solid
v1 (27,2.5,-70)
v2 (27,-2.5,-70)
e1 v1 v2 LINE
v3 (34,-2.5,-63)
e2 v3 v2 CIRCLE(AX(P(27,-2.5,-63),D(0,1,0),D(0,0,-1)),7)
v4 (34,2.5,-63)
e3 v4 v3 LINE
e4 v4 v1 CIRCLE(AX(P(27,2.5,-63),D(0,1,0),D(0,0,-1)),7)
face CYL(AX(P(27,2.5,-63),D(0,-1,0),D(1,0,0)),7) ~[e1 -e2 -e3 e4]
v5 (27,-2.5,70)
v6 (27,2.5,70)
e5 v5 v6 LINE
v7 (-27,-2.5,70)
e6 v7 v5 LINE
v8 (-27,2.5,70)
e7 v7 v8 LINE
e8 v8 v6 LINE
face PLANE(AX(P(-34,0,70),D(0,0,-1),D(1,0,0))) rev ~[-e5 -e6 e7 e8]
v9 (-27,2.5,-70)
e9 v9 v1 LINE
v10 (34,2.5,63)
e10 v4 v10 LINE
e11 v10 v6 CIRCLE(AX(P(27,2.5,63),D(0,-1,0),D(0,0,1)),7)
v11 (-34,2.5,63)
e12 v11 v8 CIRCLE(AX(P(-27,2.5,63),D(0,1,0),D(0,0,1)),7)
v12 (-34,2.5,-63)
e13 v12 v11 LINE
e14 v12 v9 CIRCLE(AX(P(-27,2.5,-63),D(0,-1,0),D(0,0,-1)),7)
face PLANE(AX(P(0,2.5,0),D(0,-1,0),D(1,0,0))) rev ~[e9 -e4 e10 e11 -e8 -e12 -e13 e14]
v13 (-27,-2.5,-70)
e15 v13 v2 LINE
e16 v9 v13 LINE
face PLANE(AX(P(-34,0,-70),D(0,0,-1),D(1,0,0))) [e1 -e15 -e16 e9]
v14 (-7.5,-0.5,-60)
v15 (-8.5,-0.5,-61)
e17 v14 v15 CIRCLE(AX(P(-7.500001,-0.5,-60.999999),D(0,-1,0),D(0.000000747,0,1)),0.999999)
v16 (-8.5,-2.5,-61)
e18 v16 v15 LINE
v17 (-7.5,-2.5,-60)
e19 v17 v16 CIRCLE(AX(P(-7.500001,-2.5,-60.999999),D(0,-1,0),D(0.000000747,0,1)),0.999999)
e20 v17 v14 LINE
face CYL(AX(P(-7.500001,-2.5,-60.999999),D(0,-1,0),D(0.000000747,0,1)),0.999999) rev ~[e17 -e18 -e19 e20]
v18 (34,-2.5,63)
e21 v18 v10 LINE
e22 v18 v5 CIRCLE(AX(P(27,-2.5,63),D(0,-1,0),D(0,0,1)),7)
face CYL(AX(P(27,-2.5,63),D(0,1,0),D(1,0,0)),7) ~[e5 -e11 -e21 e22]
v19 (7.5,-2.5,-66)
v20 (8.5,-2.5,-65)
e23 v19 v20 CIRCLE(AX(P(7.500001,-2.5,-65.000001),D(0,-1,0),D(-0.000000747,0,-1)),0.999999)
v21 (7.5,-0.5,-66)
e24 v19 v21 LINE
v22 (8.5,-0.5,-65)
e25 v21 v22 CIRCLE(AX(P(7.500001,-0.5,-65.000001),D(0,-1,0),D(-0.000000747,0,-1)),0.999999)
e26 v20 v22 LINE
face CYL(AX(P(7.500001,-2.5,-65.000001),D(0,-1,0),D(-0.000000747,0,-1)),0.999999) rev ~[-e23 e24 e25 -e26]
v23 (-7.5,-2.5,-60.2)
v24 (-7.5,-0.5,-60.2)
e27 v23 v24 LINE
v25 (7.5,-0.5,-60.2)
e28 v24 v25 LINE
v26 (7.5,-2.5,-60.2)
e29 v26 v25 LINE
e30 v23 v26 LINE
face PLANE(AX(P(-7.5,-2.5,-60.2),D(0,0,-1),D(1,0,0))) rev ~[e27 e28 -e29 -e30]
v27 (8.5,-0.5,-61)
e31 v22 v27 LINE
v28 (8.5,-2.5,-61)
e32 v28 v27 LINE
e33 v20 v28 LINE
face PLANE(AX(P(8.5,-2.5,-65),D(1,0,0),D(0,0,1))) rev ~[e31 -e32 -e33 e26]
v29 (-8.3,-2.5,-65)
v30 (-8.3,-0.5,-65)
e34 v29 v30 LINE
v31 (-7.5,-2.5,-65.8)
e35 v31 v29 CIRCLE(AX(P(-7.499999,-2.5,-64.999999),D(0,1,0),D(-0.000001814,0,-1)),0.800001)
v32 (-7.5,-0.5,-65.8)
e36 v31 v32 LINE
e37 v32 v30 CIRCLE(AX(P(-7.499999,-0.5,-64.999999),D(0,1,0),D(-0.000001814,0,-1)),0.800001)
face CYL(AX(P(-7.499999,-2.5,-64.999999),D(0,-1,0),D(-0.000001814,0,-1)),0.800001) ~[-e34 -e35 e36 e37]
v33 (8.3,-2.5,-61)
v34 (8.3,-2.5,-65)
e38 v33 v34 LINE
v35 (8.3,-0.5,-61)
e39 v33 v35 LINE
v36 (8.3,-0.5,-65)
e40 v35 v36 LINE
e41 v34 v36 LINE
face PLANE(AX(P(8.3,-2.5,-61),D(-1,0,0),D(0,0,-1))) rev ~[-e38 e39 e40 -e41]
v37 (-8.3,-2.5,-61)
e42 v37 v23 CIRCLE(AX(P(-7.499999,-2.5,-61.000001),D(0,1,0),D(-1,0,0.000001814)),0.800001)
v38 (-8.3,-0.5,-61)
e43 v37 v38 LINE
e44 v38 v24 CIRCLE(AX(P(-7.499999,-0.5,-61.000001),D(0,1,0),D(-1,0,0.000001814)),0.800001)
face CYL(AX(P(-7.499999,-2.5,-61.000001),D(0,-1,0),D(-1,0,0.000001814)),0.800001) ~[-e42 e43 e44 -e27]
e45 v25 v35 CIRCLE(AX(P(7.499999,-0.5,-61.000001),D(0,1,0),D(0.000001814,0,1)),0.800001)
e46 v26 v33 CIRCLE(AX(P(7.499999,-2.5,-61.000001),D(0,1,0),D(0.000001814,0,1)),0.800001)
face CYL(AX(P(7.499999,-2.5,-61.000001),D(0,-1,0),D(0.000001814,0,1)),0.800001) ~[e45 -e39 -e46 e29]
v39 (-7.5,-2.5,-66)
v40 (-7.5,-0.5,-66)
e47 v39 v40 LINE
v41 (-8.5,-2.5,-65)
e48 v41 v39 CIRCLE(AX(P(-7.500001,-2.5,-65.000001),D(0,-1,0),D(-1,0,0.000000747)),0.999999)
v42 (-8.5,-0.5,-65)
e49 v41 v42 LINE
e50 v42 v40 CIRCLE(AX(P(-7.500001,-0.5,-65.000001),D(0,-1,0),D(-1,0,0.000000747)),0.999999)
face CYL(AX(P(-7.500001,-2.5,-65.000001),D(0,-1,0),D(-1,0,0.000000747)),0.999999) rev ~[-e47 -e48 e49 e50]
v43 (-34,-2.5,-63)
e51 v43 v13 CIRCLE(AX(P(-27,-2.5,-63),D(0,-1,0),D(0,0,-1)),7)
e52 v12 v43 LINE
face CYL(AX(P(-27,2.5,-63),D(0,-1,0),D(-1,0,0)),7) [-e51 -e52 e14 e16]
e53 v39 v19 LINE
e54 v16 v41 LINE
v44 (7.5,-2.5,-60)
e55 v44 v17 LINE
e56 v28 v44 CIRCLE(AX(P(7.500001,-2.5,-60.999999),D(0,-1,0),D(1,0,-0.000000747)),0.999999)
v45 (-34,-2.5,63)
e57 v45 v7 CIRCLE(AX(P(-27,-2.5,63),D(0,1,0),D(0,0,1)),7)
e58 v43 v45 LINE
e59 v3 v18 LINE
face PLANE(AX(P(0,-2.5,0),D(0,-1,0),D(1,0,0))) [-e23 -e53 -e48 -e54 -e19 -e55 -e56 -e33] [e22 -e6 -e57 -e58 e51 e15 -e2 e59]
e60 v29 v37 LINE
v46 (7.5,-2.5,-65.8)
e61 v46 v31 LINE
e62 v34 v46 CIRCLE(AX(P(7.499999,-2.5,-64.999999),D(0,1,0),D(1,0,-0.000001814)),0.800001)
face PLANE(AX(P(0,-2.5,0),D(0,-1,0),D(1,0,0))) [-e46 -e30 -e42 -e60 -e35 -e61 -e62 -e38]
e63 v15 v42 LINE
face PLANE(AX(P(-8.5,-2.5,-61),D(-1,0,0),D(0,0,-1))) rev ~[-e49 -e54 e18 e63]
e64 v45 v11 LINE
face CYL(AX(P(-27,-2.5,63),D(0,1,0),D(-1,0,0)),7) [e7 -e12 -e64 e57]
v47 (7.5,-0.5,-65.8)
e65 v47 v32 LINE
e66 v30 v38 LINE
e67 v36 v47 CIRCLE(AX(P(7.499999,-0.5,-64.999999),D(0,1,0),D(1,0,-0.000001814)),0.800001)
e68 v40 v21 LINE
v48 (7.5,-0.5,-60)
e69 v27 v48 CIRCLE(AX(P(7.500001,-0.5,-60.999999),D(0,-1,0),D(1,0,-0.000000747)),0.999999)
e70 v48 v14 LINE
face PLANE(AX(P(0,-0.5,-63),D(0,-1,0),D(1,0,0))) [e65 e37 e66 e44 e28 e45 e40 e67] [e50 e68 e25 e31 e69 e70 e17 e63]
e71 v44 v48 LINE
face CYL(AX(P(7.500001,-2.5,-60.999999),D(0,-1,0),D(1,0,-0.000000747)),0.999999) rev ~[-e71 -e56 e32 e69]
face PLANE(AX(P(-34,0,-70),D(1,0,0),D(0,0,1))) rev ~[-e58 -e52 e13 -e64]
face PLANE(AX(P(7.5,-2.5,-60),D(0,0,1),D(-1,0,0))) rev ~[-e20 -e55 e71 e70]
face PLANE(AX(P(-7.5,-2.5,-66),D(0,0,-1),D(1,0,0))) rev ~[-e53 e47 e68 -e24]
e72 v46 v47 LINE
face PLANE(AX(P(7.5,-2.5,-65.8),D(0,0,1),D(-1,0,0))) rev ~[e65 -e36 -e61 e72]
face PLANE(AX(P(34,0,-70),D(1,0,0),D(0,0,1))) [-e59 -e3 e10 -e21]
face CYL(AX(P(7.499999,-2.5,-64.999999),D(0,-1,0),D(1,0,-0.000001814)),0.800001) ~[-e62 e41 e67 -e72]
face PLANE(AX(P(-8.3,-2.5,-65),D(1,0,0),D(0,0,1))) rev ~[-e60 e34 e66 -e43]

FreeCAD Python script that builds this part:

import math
import FreeCAD as App
import Part
import Sketcher

V = App.Vector
Q = App.Units.Quantity


def edges_at(feature, points):
    """Names of the edges that pass closest to the given points."""
    edges = feature.Shape.Edges
    near = lambda p: min(range(len(edges)), key=lambda i: edges[i].distToShape(Part.Vertex(*p))[0])
    return sorted({f"Edge{near(p) + 1}" for p in points})

doc = App.newDocument("Part")
params = doc.addObject("Spreadsheet::Sheet", "Params")
for row, (alias, value) in enumerate([
    ("sketch1_width", "68 mm"),
    ("sketch1_height", "140 mm"),
    ("pad1_length", "5 mm"),
    ("fillet_radius", "7 mm"),
    ("sketch2_radius", "0.999999 mm"),
    ("sketch2_radius2", "0.800001 mm"),
    ("sketch2_width", "15 mm"),
    ("sketch2_height", "4 mm"),
    ("pocket1_length", "2 mm"),
], start=1):
    params.set(f"A{row}", alias)
    params.set(f"B{row}", "=" + value)
    params.setAlias(f"B{row}", alias)

body = doc.addObject("PartDesign::Body", "Body")

sketch1 = body.newObject("Sketcher::SketchObject", "Sketch")
sketch1.AttachmentSupport = (doc.getObject("XZ_Plane"), [""])
sketch1.MapMode = "FlatFace"
sketch1.addGeometry([
    Part.LineSegment(V(-34, 70, 0), V(-34, -70, 0)),
    Part.LineSegment(V(-34, -70, 0), V(34, -70, 0)),
    Part.LineSegment(V(34, -70, 0), V(34, 70, 0)),
    Part.LineSegment(V(34, 70, 0), V(-34, 70, 0)),
], False)
sketch1.addConstraint([
    Sketcher.Constraint("Coincident", 0, 2, 1, 1),
    Sketcher.Constraint("Coincident", 1, 2, 2, 1),
    Sketcher.Constraint("Coincident", 2, 2, 3, 1),
    Sketcher.Constraint("Coincident", 3, 2, 0, 1),
    Sketcher.Constraint("Vertical", 0),
    Sketcher.Constraint("Horizontal", 1),
    Sketcher.Constraint("Vertical", 2),
    Sketcher.Constraint("Horizontal", 3),
    Sketcher.Constraint("Symmetric", 0, 2, 2, 2, -1, 1),
    Sketcher.Constraint("DistanceX", 1, 1, 1, 2, Q("68 mm")),
    Sketcher.Constraint("DistanceY", 0, 2, 0, 1, Q("140 mm")),
])
sketch1.setExpression("Constraints[9]", "Params.sketch1_width")
sketch1.setExpression("Constraints[10]", "Params.sketch1_height")
pad1 = body.newObject("PartDesign::Pad", "Pad")
pad1.Profile = sketch1
pad1.setExpression("Length", "Params.pad1_length")
pad1.Midplane = True
doc.recompute()

fillet = body.newObject("PartDesign::Fillet", "Fillet")
fillet.Base = (pad1, edges_at(pad1, [
    (34, 0, 70),
    (-34, 0, 70),
    (34, 0, -70),
    (-34, 0, -70),
]))
fillet.setExpression("Radius", "Params.fillet_radius")

sketch2 = body.newObject("Sketcher::SketchObject", "Sketch001")
sketch2.AttachmentSupport = (doc.getObject("XZ_Plane"), [""])
sketch2.MapMode = "FlatFace"
sketch2.AttachmentOffset = App.Placement(V(0, 0, 2.5), App.Rotation())
sketch2.addGeometry([
    Part.LineSegment(V(7.5, -60, 0), V(-7.5, -60, 0)),
    Part.ArcOfCircle(Part.Circle(V(-7.5, -61, 0), V(0, 0, 1), 1), math.radians(90), math.radians(180)),
    Part.LineSegment(V(-8.5, -61, 0), V(-8.5, -65, 0)),
    Part.ArcOfCircle(Part.Circle(V(-7.5, -65, 0), V(0, 0, 1), 1), math.radians(180), math.radians(270)),
    Part.LineSegment(V(-7.5, -66, 0), V(7.5, -66, 0)),
    Part.ArcOfCircle(Part.Circle(V(7.5, -65, 0), V(0, 0, 1), 1), math.radians(-90), math.radians(0)),
    Part.LineSegment(V(8.5, -65, 0), V(8.5, -61, 0)),
    Part.ArcOfCircle(Part.Circle(V(7.5, -61, 0), V(0, 0, 1), 1), math.radians(0), math.radians(90)),
    Part.LineSegment(V(-8.3, -65, 0), V(-8.3, -61, 0)),
    Part.ArcOfCircle(Part.Circle(V(-7.5, -61, 0), V(0, 0, 1), 0.8), math.radians(90), math.radians(180)),
    Part.LineSegment(V(-7.5, -60.2, 0), V(7.5, -60.2, 0)),
    Part.ArcOfCircle(Part.Circle(V(7.5, -61, 0), V(0, 0, 1), 0.8), math.radians(0), math.radians(90)),
    Part.LineSegment(V(8.3, -61, 0), V(8.3, -65, 0)),
    Part.ArcOfCircle(Part.Circle(V(7.5, -65, 0), V(0, 0, 1), 0.8), math.radians(-90), math.radians(0)),
    Part.LineSegment(V(7.5, -65.8, 0), V(-7.5, -65.8, 0)),
    Part.ArcOfCircle(Part.Circle(V(-7.5, -65, 0), V(0, 0, 1), 0.8), math.radians(-180), math.radians(-90)),
], False)
sketch2.addConstraint([
    Sketcher.Constraint("Tangent", 0, 2, 1, 1),
    Sketcher.Constraint("Tangent", 1, 2, 2, 1),
    Sketcher.Constraint("Tangent", 2, 2, 3, 1),
    Sketcher.Constraint("Tangent", 3, 2, 4, 1),
    Sketcher.Constraint("Tangent", 4, 2, 5, 1),
    Sketcher.Constraint("Tangent", 5, 2, 6, 1),
    Sketcher.Constraint("Tangent", 6, 2, 7, 1),
    Sketcher.Constraint("Tangent", 7, 2, 0, 1),
    Sketcher.Constraint("Tangent", 8, 2, 9, 2),
    Sketcher.Constraint("Tangent", 9, 1, 10, 1),
    Sketcher.Constraint("Tangent", 10, 2, 11, 2),
    Sketcher.Constraint("Tangent", 11, 1, 12, 1),
    Sketcher.Constraint("Tangent", 12, 2, 13, 2),
    Sketcher.Constraint("Tangent", 13, 1, 14, 1),
    Sketcher.Constraint("Tangent", 14, 2, 15, 2),
    Sketcher.Constraint("Tangent", 15, 1, 8, 1),
    Sketcher.Constraint("Horizontal", 0),
    Sketcher.Constraint("Vertical", 2),
    Sketcher.Constraint("Horizontal", 4),
    Sketcher.Constraint("Vertical", 6),
    Sketcher.Constraint("Vertical", 8),
    Sketcher.Constraint("Horizontal", 10),
    Sketcher.Constraint("Vertical", 12),
    Sketcher.Constraint("Horizontal", 14),
    Sketcher.Constraint("Coincident", 9, 3, 1, 3),
    Sketcher.Constraint("Coincident", 11, 3, 7, 3),
    Sketcher.Constraint("Coincident", 13, 3, 5, 3),
    Sketcher.Constraint("Equal", 1, 3),
    Sketcher.Constraint("Equal", 3, 5),
    Sketcher.Constraint("Equal", 5, 7),
    Sketcher.Constraint("Equal", 13, 15),
    Sketcher.Constraint("Radius", 1, Q("0.999999 mm")),
    Sketcher.Constraint("Radius", 9, Q("0.800001 mm")),
    Sketcher.Constraint("DistanceX", 0, 2, 0, 1, Q("15 mm")),
    Sketcher.Constraint("DistanceY", 2, 2, 2, 1, Q("4 mm")),
    Sketcher.Constraint("DistanceY", 1, 3, -1, 1, Q("60.999999 mm")),
    Sketcher.Constraint("DistanceX", 1, 3, -1, 1, Q("7.500001 mm")),
])
sketch2.setExpression("Constraints[31]", "Params.sketch2_radius")
sketch2.setExpression("Constraints[32]", "Params.sketch2_radius2")
sketch2.setExpression("Constraints[33]", "Params.sketch2_width")
sketch2.setExpression("Constraints[34]", "Params.sketch2_height")
pocket1 = body.newObject("PartDesign::Pocket", "Pocket")
pocket1.Profile = sketch2
pocket1.setExpression("Length", "Params.pocket1_length")

doc.recompute()
